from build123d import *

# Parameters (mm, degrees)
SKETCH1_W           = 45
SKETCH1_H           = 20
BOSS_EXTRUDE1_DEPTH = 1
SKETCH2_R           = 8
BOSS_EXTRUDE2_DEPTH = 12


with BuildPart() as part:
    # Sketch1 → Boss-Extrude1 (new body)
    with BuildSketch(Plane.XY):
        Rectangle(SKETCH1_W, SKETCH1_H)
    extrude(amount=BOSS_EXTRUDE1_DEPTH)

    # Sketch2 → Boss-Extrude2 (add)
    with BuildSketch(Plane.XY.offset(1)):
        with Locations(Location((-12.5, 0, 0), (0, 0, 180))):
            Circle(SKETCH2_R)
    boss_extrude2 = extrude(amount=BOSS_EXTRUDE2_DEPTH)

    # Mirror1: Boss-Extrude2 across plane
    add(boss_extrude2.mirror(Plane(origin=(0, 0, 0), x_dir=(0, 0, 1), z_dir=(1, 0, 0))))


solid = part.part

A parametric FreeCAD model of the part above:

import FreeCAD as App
import Part
import Sketcher

V = App.Vector

doc = App.newDocument("Part")
params = doc.addObject("Spreadsheet::Sheet", "Params")
for row, (alias, value) in enumerate([
    ("sketch1_width", "45 mm"),
    ("sketch1_height", "20 mm"),
    ("pad1_length", "1 mm"),
    ("sketch2_diameter", "16 mm"),
    ("pad2_length", "12 mm"),
], start=1):
    params.set(f"A{row}", alias)
    params.set(f"B{row}", "=" + value)
    params.setAlias(f"B{row}", alias)

body = doc.addObject("PartDesign::Body", "Body")

# Sketch on XY plane
sketch1 = doc.addObject("Sketcher::SketchObject", "Sketch")
body.addObject(sketch1)
sketch1.AttachmentSupport = (doc.XY_Plane, [""])
sketch1.MapMode = "FlatFace"
sketch1.addGeometry([
    Part.LineSegment(V(-22, 10, 0), V(-22, -10, 0)),
    Part.LineSegment(V(-22, -10, 0), V(22, -10, 0)),
    Part.LineSegment(V(22, -10, 0), V(22, 10, 0)),
    Part.LineSegment(V(22, 10, 0), V(-22, 10, 0)),
], False)
sketch1.addConstraint([
    Sketcher.Constraint("Coincident", 0, 2, 1, 1),
    Sketcher.Constraint("Coincident", 1, 2, 2, 1),
    Sketcher.Constraint("Coincident", 2, 2, 3, 1),
    Sketcher.Constraint("Coincident", 3, 2, 0, 1),
    Sketcher.Constraint("Vertical", 0),
    Sketcher.Constraint("Horizontal", 1),
    Sketcher.Constraint("Vertical", 2),
    Sketcher.Constraint("Horizontal", 3),
    Sketcher.Constraint("Symmetric", 0, 2, 2, 2, -1, 1),
    Sketcher.Constraint("DistanceX", 1, 1, 1, 2, 45.0),
    Sketcher.Constraint("DistanceY", 0, 2, 0, 1, 20.0),
])
sketch1.setExpression("Constraints[9]", "Params.sketch1_width")
sketch1.setExpression("Constraints[10]", "Params.sketch1_height")
pad1 = doc.addObject("PartDesign::Pad", "Pad")
body.addObject(pad1)
pad1.Profile = sketch1
pad1.setExpression("Length", "Params.pad1_length")

# Sketch on XY plane
sketch2 = doc.addObject("Sketcher::SketchObject", "Sketch001")
body.addObject(sketch2)
sketch2.AttachmentSupport = (doc.XY_Plane, [""])
sketch2.MapMode = "FlatFace"
sketch2.AttachmentOffset = App.Placement(V(0, 0, 1), App.Rotation())
sketch2.addGeometry(Part.Circle(V(-12, 0, 0), V(0, 0, 1), 8), False)
sketch2.addConstraint([
    Sketcher.Constraint("PointOnObject", 0, 3, -1),
    Sketcher.Constraint("Diameter", 0, 16.0),
    Sketcher.Constraint("DistanceX", 0, 3, -1, 1, 12.5),
])
sketch2.setExpression("Constraints[1]", "Params.sketch2_diameter")
pad2 = doc.addObject("PartDesign::Pad", "Pad001")
body.addObject(pad2)
pad2.Profile = sketch2
pad2.setExpression("Length", "Params.pad2_length")
doc.recompute()

mirrored = doc.addObject("PartDesign::Mirrored", "Mirrored")
body.addObject(mirrored)
mirrored.Originals = [pad2]
mirrored.MirrorPlane = (doc.YZ_Plane, [""])
body.Tip = mirrored

doc.recompute()
